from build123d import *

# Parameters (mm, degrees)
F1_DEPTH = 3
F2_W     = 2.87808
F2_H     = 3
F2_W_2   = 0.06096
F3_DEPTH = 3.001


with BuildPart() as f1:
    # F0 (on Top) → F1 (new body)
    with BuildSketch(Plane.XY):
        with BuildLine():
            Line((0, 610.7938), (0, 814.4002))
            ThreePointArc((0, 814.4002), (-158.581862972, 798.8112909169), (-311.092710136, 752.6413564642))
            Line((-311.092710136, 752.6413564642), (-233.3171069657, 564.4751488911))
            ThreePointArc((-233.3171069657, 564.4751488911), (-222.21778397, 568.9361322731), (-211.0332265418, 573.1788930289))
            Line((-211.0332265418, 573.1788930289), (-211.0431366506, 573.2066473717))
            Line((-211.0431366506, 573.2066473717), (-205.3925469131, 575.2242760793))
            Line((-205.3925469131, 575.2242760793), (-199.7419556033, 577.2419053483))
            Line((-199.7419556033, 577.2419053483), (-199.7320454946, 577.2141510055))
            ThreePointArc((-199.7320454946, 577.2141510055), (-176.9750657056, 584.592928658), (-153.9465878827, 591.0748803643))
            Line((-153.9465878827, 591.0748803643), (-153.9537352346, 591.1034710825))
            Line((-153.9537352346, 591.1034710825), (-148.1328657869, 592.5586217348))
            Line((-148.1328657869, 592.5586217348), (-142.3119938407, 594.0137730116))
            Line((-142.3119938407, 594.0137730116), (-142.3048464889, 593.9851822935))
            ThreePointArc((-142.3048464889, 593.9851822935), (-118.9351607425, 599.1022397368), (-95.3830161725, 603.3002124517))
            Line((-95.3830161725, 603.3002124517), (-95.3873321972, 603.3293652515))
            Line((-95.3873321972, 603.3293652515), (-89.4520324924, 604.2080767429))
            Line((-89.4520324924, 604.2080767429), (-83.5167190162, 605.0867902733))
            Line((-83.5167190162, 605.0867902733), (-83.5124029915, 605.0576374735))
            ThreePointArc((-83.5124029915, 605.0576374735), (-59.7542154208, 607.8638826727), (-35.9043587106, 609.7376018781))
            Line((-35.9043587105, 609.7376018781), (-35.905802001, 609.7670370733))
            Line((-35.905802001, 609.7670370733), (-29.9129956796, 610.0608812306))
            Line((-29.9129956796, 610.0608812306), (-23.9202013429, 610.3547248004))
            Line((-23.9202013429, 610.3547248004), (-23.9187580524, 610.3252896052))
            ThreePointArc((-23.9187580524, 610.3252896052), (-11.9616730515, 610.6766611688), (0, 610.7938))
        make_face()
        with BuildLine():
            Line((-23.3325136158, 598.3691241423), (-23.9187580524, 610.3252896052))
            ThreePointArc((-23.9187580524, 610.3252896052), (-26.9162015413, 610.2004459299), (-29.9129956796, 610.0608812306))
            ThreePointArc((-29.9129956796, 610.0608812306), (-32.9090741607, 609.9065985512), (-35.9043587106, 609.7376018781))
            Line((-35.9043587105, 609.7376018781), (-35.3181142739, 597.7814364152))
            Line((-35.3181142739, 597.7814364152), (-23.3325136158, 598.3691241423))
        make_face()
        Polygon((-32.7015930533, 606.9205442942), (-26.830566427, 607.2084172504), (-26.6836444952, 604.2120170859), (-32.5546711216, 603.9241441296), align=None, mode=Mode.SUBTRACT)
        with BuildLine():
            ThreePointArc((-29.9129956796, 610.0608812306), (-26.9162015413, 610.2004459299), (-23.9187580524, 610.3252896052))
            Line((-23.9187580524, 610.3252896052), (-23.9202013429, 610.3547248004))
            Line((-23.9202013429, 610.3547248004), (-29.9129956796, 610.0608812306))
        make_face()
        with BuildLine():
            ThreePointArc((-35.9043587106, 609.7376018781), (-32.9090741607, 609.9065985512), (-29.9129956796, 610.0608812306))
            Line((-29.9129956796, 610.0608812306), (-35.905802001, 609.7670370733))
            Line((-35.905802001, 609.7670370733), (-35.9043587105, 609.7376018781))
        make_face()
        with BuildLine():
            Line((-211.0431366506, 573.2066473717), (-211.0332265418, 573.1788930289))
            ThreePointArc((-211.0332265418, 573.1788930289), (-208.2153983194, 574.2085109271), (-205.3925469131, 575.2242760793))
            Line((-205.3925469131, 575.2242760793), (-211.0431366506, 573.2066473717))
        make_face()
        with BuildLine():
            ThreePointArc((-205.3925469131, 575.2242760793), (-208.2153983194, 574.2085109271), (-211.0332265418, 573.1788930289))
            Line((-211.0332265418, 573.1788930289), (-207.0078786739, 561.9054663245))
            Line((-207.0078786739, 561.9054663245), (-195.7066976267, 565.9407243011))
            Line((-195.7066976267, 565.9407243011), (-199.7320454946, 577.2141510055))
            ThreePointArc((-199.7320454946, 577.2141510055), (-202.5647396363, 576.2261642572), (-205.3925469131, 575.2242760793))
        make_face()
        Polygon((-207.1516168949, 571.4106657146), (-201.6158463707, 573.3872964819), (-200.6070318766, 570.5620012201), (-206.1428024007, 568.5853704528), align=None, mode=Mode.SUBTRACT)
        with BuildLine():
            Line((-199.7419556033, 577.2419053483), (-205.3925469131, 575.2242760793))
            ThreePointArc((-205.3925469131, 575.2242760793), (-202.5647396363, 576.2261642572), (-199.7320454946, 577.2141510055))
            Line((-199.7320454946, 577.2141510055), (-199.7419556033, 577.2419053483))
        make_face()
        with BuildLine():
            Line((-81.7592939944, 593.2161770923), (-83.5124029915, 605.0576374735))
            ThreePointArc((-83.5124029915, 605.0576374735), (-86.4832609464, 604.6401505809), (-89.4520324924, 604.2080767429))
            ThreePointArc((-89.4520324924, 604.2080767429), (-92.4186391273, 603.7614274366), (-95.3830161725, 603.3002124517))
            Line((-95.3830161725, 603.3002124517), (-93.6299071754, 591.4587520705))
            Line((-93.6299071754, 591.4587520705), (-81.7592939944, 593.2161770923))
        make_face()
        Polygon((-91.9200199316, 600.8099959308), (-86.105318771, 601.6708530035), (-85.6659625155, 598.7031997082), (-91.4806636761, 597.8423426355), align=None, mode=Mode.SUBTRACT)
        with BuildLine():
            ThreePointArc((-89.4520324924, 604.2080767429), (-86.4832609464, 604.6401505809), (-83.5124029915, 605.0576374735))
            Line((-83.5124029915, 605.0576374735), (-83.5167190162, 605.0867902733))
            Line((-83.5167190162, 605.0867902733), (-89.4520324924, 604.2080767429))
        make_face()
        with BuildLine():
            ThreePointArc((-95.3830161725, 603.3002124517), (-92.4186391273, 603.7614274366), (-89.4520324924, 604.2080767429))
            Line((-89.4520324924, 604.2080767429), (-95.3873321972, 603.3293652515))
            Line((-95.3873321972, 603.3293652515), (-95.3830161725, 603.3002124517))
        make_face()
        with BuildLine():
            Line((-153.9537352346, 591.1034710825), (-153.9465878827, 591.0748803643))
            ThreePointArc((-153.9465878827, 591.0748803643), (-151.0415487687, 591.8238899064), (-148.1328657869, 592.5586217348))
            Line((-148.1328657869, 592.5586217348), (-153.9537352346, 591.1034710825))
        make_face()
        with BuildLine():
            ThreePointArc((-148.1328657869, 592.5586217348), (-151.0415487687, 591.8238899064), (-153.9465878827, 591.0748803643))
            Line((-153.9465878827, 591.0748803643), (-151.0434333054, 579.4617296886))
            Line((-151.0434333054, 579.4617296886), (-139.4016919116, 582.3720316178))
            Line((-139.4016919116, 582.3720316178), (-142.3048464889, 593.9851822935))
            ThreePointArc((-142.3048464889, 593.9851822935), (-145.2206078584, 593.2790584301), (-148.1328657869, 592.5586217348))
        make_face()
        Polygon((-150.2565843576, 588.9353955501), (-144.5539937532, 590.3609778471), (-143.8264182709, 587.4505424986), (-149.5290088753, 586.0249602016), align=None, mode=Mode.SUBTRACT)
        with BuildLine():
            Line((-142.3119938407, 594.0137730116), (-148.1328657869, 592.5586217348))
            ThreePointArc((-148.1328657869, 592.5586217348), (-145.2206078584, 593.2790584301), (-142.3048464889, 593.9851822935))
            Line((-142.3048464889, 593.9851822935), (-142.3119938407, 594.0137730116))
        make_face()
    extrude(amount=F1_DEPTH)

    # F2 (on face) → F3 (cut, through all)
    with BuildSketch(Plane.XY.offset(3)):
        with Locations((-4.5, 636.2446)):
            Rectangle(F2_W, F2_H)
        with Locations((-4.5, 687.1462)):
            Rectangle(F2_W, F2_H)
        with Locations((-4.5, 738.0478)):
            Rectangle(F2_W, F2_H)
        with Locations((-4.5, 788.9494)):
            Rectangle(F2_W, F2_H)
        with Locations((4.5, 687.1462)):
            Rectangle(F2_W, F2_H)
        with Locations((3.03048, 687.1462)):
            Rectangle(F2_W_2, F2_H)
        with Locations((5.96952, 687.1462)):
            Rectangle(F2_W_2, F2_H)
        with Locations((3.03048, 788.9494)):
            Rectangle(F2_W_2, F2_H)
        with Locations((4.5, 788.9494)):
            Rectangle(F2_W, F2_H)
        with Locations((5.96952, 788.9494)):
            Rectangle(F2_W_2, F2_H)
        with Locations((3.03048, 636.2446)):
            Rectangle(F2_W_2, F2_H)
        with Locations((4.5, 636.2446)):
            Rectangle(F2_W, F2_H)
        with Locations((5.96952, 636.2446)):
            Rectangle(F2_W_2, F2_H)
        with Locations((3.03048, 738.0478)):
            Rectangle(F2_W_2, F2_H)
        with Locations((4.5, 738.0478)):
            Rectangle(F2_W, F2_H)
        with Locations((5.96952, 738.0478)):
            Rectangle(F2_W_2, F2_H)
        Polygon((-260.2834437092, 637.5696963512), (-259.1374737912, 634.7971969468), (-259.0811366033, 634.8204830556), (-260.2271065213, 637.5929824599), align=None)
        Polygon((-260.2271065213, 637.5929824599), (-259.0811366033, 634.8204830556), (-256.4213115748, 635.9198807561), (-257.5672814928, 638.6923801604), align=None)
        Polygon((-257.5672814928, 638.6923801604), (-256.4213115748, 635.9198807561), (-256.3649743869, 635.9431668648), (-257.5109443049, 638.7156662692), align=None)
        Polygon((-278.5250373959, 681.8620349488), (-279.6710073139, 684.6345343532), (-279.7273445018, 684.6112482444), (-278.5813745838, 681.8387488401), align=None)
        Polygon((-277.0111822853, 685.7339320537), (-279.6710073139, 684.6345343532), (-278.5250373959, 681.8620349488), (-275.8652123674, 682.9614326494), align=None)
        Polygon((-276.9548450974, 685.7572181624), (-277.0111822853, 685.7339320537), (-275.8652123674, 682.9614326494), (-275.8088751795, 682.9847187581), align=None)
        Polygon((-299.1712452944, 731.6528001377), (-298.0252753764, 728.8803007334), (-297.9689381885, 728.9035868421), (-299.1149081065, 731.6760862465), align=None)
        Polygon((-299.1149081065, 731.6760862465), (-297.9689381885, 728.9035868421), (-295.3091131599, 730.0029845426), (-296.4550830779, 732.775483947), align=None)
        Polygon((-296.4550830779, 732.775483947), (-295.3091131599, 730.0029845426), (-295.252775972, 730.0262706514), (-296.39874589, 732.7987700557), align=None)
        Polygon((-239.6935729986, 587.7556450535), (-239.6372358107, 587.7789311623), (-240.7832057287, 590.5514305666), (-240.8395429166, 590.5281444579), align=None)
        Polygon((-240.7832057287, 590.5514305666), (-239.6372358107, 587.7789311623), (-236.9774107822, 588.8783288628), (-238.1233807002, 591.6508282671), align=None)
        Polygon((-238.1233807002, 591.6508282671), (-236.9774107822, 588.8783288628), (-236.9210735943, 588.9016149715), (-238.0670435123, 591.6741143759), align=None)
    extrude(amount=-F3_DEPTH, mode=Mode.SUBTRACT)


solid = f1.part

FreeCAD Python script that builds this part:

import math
import FreeCAD as App
import Part
import Sketcher

V = App.Vector
Q = App.Units.Quantity


def add_polygon(sketch, points):
    """Adds a closed chain of lines whose ends are joined by coincident constraints."""
    first, n = sketch.GeometryCount, len(points)
    for a, b in zip(points, points[1:] + points[:1]):
        sketch.addGeometry(Part.LineSegment(App.Vector(*a, 0), App.Vector(*b, 0)), False)
    for i in range(n):
        sketch.addConstraint(Sketcher.Constraint("Coincident", first + i, 2, first + (i + 1) % n, 1))

doc = App.newDocument("Part")
body = doc.addObject("PartDesign::Body", "Body")

sketch1 = body.newObject("Sketcher::SketchObject", "Sketch")
sketch1.AttachmentSupport = (doc.getObject("XY_Plane"), [""])
sketch1.MapMode = "FlatFace"
sketch1.addGeometry(Part.LineSegment(V(-151.043433, 579.46173, 0), V(-139.401692, 582.372032, 0)), False)
sketch1.addGeometry(Part.LineSegment(V(-139.401692, 582.372032, 0), V(-142.304846, 593.985182, 0)), False)
sketch1.addGeometry(Part.ArcOfCircle(Part.Circle(V(0, 0, 0), V(0, 0, 1), 610.7938), math.radians(98.984217), math.radians(103.472784)), False)
sketch1.addGeometry(Part.LineSegment(V(-95.383016, 603.300212, 0), V(-93.629907, 591.458752, 0)), False)
sketch1.addGeometry(Part.LineSegment(V(-93.629907, 591.458752, 0), V(-81.759294, 593.216177, 0)), False)
sketch1.addGeometry(Part.LineSegment(V(-81.759294, 593.216177, 0), V(-83.512403, 605.057637, 0)), False)
sketch1.addGeometry(Part.ArcOfCircle(Part.Circle(V(0, 0, 0), V(0, 0, 1), 610.7938), math.radians(93.369967), math.radians(97.858534)), False)
sketch1.addGeometry(Part.LineSegment(V(-35.904359, 609.737602, 0), V(-35.318114, 597.781436, 0)), False)
sketch1.addGeometry(Part.LineSegment(V(-35.318114, 597.781436, 0), V(-23.332514, 598.369124, 0)), False)
sketch1.addGeometry(Part.LineSegment(V(-23.332514, 598.369124, 0), V(-23.918758, 610.32529, 0)), False)
sketch1.addGeometry(Part.ArcOfCircle(Part.Circle(V(0, 0, 0), V(0, 0, 1), 610.7938), math.radians(90), math.radians(92.244283)), False)
sketch1.addGeometry(Part.LineSegment(V(0, 610.7938, 0), V(0, 814.4002, 0)), False)
sketch1.addGeometry(Part.ArcOfCircle(Part.Circle(V(0, 0, 0), V(0, 0, 1), 814.4002), math.radians(90), math.radians(112.457001)), False)
sketch1.addGeometry(Part.LineSegment(V(-311.09271, 752.641356, 0), V(-233.317107, 564.475149, 0)), False)
sketch1.addGeometry(Part.ArcOfCircle(Part.Circle(V(0, 0, 0), V(0, 0, 1), 610.7938), math.radians(110.212717), math.radians(112.457001)), False)
sketch1.addGeometry(Part.LineSegment(V(-211.033227, 573.178893, 0), V(-207.007879, 561.905466, 0)), False)
sketch1.addGeometry(Part.LineSegment(V(-207.007879, 561.905466, 0), V(-195.706698, 565.940724, 0)), False)
sketch1.addGeometry(Part.LineSegment(V(-195.706698, 565.940724, 0), V(-199.732045, 577.214151, 0)), False)
sketch1.addGeometry(Part.ArcOfCircle(Part.Circle(V(0, 0, 0), V(0, 0, 1), 610.7938), math.radians(104.598467), math.radians(109.087034)), False)
sketch1.addGeometry(Part.LineSegment(V(-153.946588, 591.07488, 0), V(-151.043433, 579.46173, 0)), False)
add_polygon(sketch1, [(-206.142802, 568.58537), (-207.151617, 571.410666), (-201.615846, 573.387296), (-200.607032, 570.562001)])
add_polygon(sketch1, [(-149.529009, 586.02496), (-150.256584, 588.935396), (-144.553994, 590.360978), (-143.826418, 587.450542)])
add_polygon(sketch1, [(-91.92002, 600.809996), (-86.105319, 601.670853), (-85.665963, 598.7032), (-91.480664, 597.842343)])
add_polygon(sketch1, [(-32.701593, 606.920544), (-26.830566, 607.208417), (-26.683644, 604.212017), (-32.554671, 603.924144)])
sketch1.addConstraint(Sketcher.Constraint("Coincident", 0, 2, 1, 1))
sketch1.addConstraint(Sketcher.Constraint("Coincident", 1, 2, 2, 2))
sketch1.addConstraint(Sketcher.Constraint("Coincident", 2, 1, 3, 1))
sketch1.addConstraint(Sketcher.Constraint("Coincident", 3, 2, 4, 1))
sketch1.addConstraint(Sketcher.Constraint("Coincident", 4, 2, 5, 1))
sketch1.addConstraint(Sketcher.Constraint("Coincident", 5, 2, 6, 2))
sketch1.addConstraint(Sketcher.Constraint("Coincident", 6, 1, 7, 1))
sketch1.addConstraint(Sketcher.Constraint("Coincident", 7, 2, 8, 1))
sketch1.addConstraint(Sketcher.Constraint("Coincident", 8, 2, 9, 1))
sketch1.addConstraint(Sketcher.Constraint("Coincident", 9, 2, 10, 2))
sketch1.addConstraint(Sketcher.Constraint("Coincident", 10, 1, 11, 1))
sketch1.addConstraint(Sketcher.Constraint("Coincident", 11, 2, 12, 1))
sketch1.addConstraint(Sketcher.Constraint("Coincident", 12, 2, 13, 1))
sketch1.addConstraint(Sketcher.Constraint("Coincident", 13, 2, 14, 2))
sketch1.addConstraint(Sketcher.Constraint("Coincident", 14, 1, 15, 1))
sketch1.addConstraint(Sketcher.Constraint("Coincident", 15, 2, 16, 1))
sketch1.addConstraint(Sketcher.Constraint("Coincident", 16, 2, 17, 1))
sketch1.addConstraint(Sketcher.Constraint("Coincident", 17, 2, 18, 2))
sketch1.addConstraint(Sketcher.Constraint("Coincident", 18, 1, 19, 1))
sketch1.addConstraint(Sketcher.Constraint("Coincident", 19, 2, 0, 1))
sketch1.addConstraint(Sketcher.Constraint("Vertical", 11))
sketch1.addConstraint(Sketcher.Constraint("Coincident", 2, 3, -1, 1))
sketch1.addConstraint(Sketcher.Constraint("Coincident", 6, 3, -1, 1))
sketch1.addConstraint(Sketcher.Constraint("Coincident", 10, 3, -1, 1))
sketch1.addConstraint(Sketcher.Constraint("Coincident", 12, 3, -1, 1))
sketch1.addConstraint(Sketcher.Constraint("Coincident", 14, 3, -1, 1))
sketch1.addConstraint(Sketcher.Constraint("Coincident", 18, 3, -1, 1))
sketch1.addConstraint(Sketcher.Constraint("Equal", 2, 6))
sketch1.addConstraint(Sketcher.Constraint("Equal", 6, 10))
sketch1.addConstraint(Sketcher.Constraint("Equal", 10, 14))
sketch1.addConstraint(Sketcher.Constraint("Equal", 14, 18))
sketch1.addConstraint(Sketcher.Constraint("PointOnObject", 11, 2, -2))
sketch1.addConstraint(Sketcher.Constraint("Perpendicular", 0, 1))
sketch1.addConstraint(Sketcher.Constraint("Perpendicular", 3, 4))
sketch1.addConstraint(Sketcher.Constraint("Perpendicular", 4, 5))
sketch1.addConstraint(Sketcher.Constraint("Perpendicular", 7, 8))
sketch1.addConstraint(Sketcher.Constraint("Perpendicular", 8, 9))
sketch1.addConstraint(Sketcher.Constraint("Perpendicular", 15, 16))
sketch1.addConstraint(Sketcher.Constraint("Perpendicular", 16, 17))
sketch1.addConstraint(Sketcher.Constraint("Parallel", 1, 19))
sketch1.addConstraint(Sketcher.Constraint("Parallel", 17, 20))
sketch1.addConstraint(Sketcher.Constraint("Perpendicular", 20, 21))
sketch1.addConstraint(Sketcher.Constraint("Perpendicular", 21, 22))
sketch1.addConstraint(Sketcher.Constraint("Perpendicular", 22, 23))
sketch1.addConstraint(Sketcher.Constraint("Parallel", 19, 24))
sketch1.addConstraint(Sketcher.Constraint("Perpendicular", 24, 25))
sketch1.addConstraint(Sketcher.Constraint("Perpendicular", 25, 26))
sketch1.addConstraint(Sketcher.Constraint("Perpendicular", 26, 27))
sketch1.addConstraint(Sketcher.Constraint("Perpendicular", 5, 28))
sketch1.addConstraint(Sketcher.Constraint("Perpendicular", 28, 29))
sketch1.addConstraint(Sketcher.Constraint("Perpendicular", 29, 30))
sketch1.addConstraint(Sketcher.Constraint("Perpendicular", 30, 31))
sketch1.addConstraint(Sketcher.Constraint("Perpendicular", 9, 32))
sketch1.addConstraint(Sketcher.Constraint("Perpendicular", 32, 33))
sketch1.addConstraint(Sketcher.Constraint("Perpendicular", 33, 34))
sketch1.addConstraint(Sketcher.Constraint("Perpendicular", 34, 35))
sketch1.addConstraint(Sketcher.Constraint("Equal", 1, 3))
sketch1.addConstraint(Sketcher.Constraint("Equal", 0, 4))
sketch1.addConstraint(Sketcher.Constraint("Equal", 3, 5))
sketch1.addConstraint(Sketcher.Constraint("Equal", 5, 7))
sketch1.addConstraint(Sketcher.Constraint("Equal", 4, 8))
sketch1.addConstraint(Sketcher.Constraint("Equal", 7, 9))
sketch1.addConstraint(Sketcher.Constraint("Equal", 9, 15))
sketch1.addConstraint(Sketcher.Constraint("Equal", 8, 16))
sketch1.addConstraint(Sketcher.Constraint("Equal", 15, 17))
sketch1.addConstraint(Sketcher.Constraint("Equal", 17, 19))
sketch1.addConstraint(Sketcher.Constraint("Equal", 22, 24))
sketch1.addConstraint(Sketcher.Constraint("Equal", 23, 25))
sketch1.addConstraint(Sketcher.Constraint("Equal", 27, 28))
sketch1.addConstraint(Sketcher.Constraint("Equal", 26, 29))
sketch1.addConstraint(Sketcher.Constraint("Equal", 30, 32))
sketch1.addConstraint(Sketcher.Constraint("Equal", 31, 33))
sketch1.addConstraint(Sketcher.Constraint("Radius", 2, Q("24.047 in")))
sketch1.addConstraint(Sketcher.Constraint("Radius", 12, Q("32.063 in")))
sketch1.addConstraint(Sketcher.Constraint("DistanceY", -1, 1, 30, 2, Q("23.5371001 in")))
sketch1.addConstraint(Sketcher.Constraint("DistanceY", 13, 2, 16, 2, Q("0.0576998 in")))
sketch1.addConstraint(Sketcher.Constraint("DistanceY", 0, 2, 24, 2, Q("0.2584002 in")))
sketch1.addConstraint(Sketcher.Constraint("Distance", 0, Q("12 mm")))
sketch1.addConstraint(Sketcher.Constraint("Distance", 20, Q("3 mm")))
sketch1.addConstraint(Sketcher.Constraint("DistanceY", -1, 1, 22, 2, Q("570.562001 mm")))
sketch1.addConstraint(Sketcher.Constraint("DistanceY", -1, 1, 29, 2, Q("598.7032 mm")))
sketch1.addConstraint(Sketcher.Constraint("DistanceY", 7, 2, 5, 2, Q("7.276201 mm")))
sketch1.addConstraint(Sketcher.Constraint("DistanceX", 13, 2, 3, 2, Q("139.6872 mm")))
sketch1.addConstraint(Sketcher.Constraint("DistanceX", 17, 2, 1, 2, Q("57.427199 mm")))
sketch1.addConstraint(Sketcher.Constraint("DistanceY", 19, 2, 0, 2, Q("2.910302 mm")))
sketch1.addConstraint(Sketcher.Constraint("DistanceY", 15, 2, 20, 2, Q("9.505199 mm")))
sketch1.addConstraint(Sketcher.Constraint("DistanceX", 21, 2, 17, 2, Q("1.883801 mm")))
sketch1.addConstraint(Sketcher.Constraint("DistanceX", 25, 2, 0, 2, Q("5.152302 mm")))
sketch1.addConstraint(Sketcher.Constraint("DistanceX", 28, 2, -1, 1, Q("86.105319 mm")))
sketch1.addConstraint(Sketcher.Constraint("DistanceX", 34, 2, -1, 1, Q("32.554671 mm")))
sketch1.addConstraint(Sketcher.Constraint("DistanceY", 7, 2, 32, 2, Q("9.426981 mm")))
sketch1.addConstraint(Sketcher.Constraint("Angle", 13, Q("-67.542999 deg")))
pad1 = body.newObject("PartDesign::Pad", "Pad")
pad1.Profile = sketch1
pad1.Length = 3

sketch2 = body.newObject("Sketcher::SketchObject", "Sketch001")
sketch2.AttachmentSupport = (doc.getObject("XY_Plane"), [""])
sketch2.MapMode = "FlatFace"
sketch2.AttachmentOffset = App.Placement(V(0, 0, 3), App.Rotation())
add_polygon(sketch2, [(-5.93904, 637.7446), (-5.93904, 634.7446), (-3.06096, 634.7446), (-3.06096, 637.7446)])
add_polygon(sketch2, [(-5.93904, 688.6462), (-5.93904, 685.6462), (-3.06096, 685.6462), (-3.06096, 688.6462)])
add_polygon(sketch2, [(-5.93904, 739.5478), (-5.93904, 736.5478), (-3.06096, 736.5478), (-3.06096, 739.5478)])
add_polygon(sketch2, [(-5.93904, 790.4494), (-5.93904, 787.4494), (-3.06096, 787.4494), (-3.06096, 790.4494)])
add_polygon(sketch2, [(3, 688.6462), (3, 685.6462), (6, 685.6462), (6, 688.6462)])
add_polygon(sketch2, [(3, 790.4494), (3, 787.4494), (6, 787.4494), (6, 790.4494)])
add_polygon(sketch2, [(3, 637.7446), (3, 634.7446), (6, 634.7446), (6, 637.7446)])
add_polygon(sketch2, [(3, 739.5478), (3, 736.5478), (6, 736.5478), (6, 739.5478)])
add_polygon(sketch2, [(-260.283444, 637.569696), (-259.137474, 634.797197), (-259.081137, 634.820483), (-256.421312, 635.919881), (-256.364974, 635.943167), (-257.510944, 638.715666), (-257.567281, 638.69238), (-260.227107, 637.592982)])
add_polygon(sketch2, [(-279.671007, 684.634534), (-279.727345, 684.611248), (-278.581375, 681.838749), (-278.525037, 681.862035), (-275.865212, 682.961433), (-275.808875, 682.984719), (-276.954845, 685.757218), (-277.011182, 685.733932)])
add_polygon(sketch2, [(-299.171245, 731.6528), (-298.025275, 728.880301), (-297.968938, 728.903587), (-295.309113, 730.002985), (-295.252776, 730.026271), (-296.398746, 732.79877), (-296.455083, 732.775484), (-299.114908, 731.676086)])
add_polygon(sketch2, [(-239.693573, 587.755645), (-239.637236, 587.778931), (-236.977411, 588.878329), (-236.921074, 588.901615), (-238.067044, 591.674114), (-238.123381, 591.650828), (-240.783206, 590.551431), (-240.839543, 590.528144)])
sketch2.addConstraint(Sketcher.Constraint("Vertical", 0))
sketch2.addConstraint(Sketcher.Constraint("Horizontal", 1))
sketch2.addConstraint(Sketcher.Constraint("Vertical", 2))
sketch2.addConstraint(Sketcher.Constraint("Horizontal", 3))
sketch2.addConstraint(Sketcher.Constraint("Vertical", 4))
sketch2.addConstraint(Sketcher.Constraint("Horizontal", 5))
sketch2.addConstraint(Sketcher.Constraint("Vertical", 6))
sketch2.addConstraint(Sketcher.Constraint("Horizontal", 7))
sketch2.addConstraint(Sketcher.Constraint("Vertical", 8))
sketch2.addConstraint(Sketcher.Constraint("Horizontal", 9))
sketch2.addConstraint(Sketcher.Constraint("Vertical", 10))
sketch2.addConstraint(Sketcher.Constraint("Horizontal", 11))
sketch2.addConstraint(Sketcher.Constraint("Vertical", 12))
sketch2.addConstraint(Sketcher.Constraint("Horizontal", 13))
sketch2.addConstraint(Sketcher.Constraint("Vertical", 14))
sketch2.addConstraint(Sketcher.Constraint("Horizontal", 15))
sketch2.addConstraint(Sketcher.Constraint("Vertical", 16))
sketch2.addConstraint(Sketcher.Constraint("Horizontal", 17))
sketch2.addConstraint(Sketcher.Constraint("Vertical", 18))
sketch2.addConstraint(Sketcher.Constraint("Horizontal", 19))
sketch2.addConstraint(Sketcher.Constraint("Vertical", 20))
sketch2.addConstraint(Sketcher.Constraint("Horizontal", 21))
sketch2.addConstraint(Sketcher.Constraint("Vertical", 22))
sketch2.addConstraint(Sketcher.Constraint("Horizontal", 23))
sketch2.addConstraint(Sketcher.Constraint("Vertical", 24))
sketch2.addConstraint(Sketcher.Constraint("Horizontal", 25))
sketch2.addConstraint(Sketcher.Constraint("Vertical", 26))
sketch2.addConstraint(Sketcher.Constraint("Horizontal", 27))
sketch2.addConstraint(Sketcher.Constraint("Vertical", 28))
sketch2.addConstraint(Sketcher.Constraint("Horizontal", 29))
sketch2.addConstraint(Sketcher.Constraint("Vertical", 30))
sketch2.addConstraint(Sketcher.Constraint("Horizontal", 31))
sketch2.addConstraint(Sketcher.Constraint("Perpendicular", 32, 33))
sketch2.addConstraint(Sketcher.Constraint("Parallel", 33, 34))
sketch2.addConstraint(Sketcher.Constraint("Parallel", 34, 35))
sketch2.addConstraint(Sketcher.Constraint("Perpendicular", 35, 36))
sketch2.addConstraint(Sketcher.Constraint("Perpendicular", 36, 37))
sketch2.addConstraint(Sketcher.Constraint("Parallel", 37, 38))
sketch2.addConstraint(Sketcher.Constraint("Parallel", 38, 39))
sketch2.addConstraint(Sketcher.Constraint("Parallel", 39, 40))
sketch2.addConstraint(Sketcher.Constraint("Perpendicular", 40, 41))
sketch2.addConstraint(Sketcher.Constraint("Perpendicular", 41, 42))
sketch2.addConstraint(Sketcher.Constraint("Parallel", 42, 43))
sketch2.addConstraint(Sketcher.Constraint("Parallel", 43, 44))
sketch2.addConstraint(Sketcher.Constraint("Perpendicular", 44, 45))
sketch2.addConstraint(Sketcher.Constraint("Perpendicular", 45, 46))
sketch2.addConstraint(Sketcher.Constraint("Parallel", 46, 47))
sketch2.addConstraint(Sketcher.Constraint("Perpendicular", 47, 48))
sketch2.addConstraint(Sketcher.Constraint("Perpendicular", 48, 49))
sketch2.addConstraint(Sketcher.Constraint("Parallel", 49, 50))
sketch2.addConstraint(Sketcher.Constraint("Parallel", 50, 51))
sketch2.addConstraint(Sketcher.Constraint("Perpendicular", 51, 52))
sketch2.addConstraint(Sketcher.Constraint("Perpendicular", 52, 53))
sketch2.addConstraint(Sketcher.Constraint("Parallel", 53, 54))
sketch2.addConstraint(Sketcher.Constraint("Parallel", 54, 55))
sketch2.addConstraint(Sketcher.Constraint("Parallel", 55, 56))
sketch2.addConstraint(Sketcher.Constraint("Parallel", 56, 57))
sketch2.addConstraint(Sketcher.Constraint("Parallel", 57, 58))
sketch2.addConstraint(Sketcher.Constraint("Perpendicular", 58, 59))
sketch2.addConstraint(Sketcher.Constraint("Perpendicular", 59, 60))
sketch2.addConstraint(Sketcher.Constraint("Parallel", 60, 61))
sketch2.addConstraint(Sketcher.Constraint("Parallel", 61, 62))
sketch2.addConstraint(Sketcher.Constraint("Perpendicular", 62, 63))
sketch2.addConstraint(Sketcher.Constraint("Horizontal", 5, 2, 16, 2))
sketch2.addConstraint(Sketcher.Constraint("Horizontal", 7, 2, 18, 2))
sketch2.addConstraint(Sketcher.Constraint("Horizontal", 13, 2, 20, 2))
sketch2.addConstraint(Sketcher.Constraint("Horizontal", 15, 2, 22, 2))
sketch2.addConstraint(Sketcher.Constraint("Horizontal", 1, 2, 24, 2))
sketch2.addConstraint(Sketcher.Constraint("Horizontal", 3, 2, 26, 2))
sketch2.addConstraint(Sketcher.Constraint("Horizontal", 9, 2, 28, 2))
sketch2.addConstraint(Sketcher.Constraint("Horizontal", 11, 2, 30, 2))
sketch2.addConstraint(Sketcher.Constraint("Vertical", 3, 2, 4, 2))
sketch2.addConstraint(Sketcher.Constraint("Vertical", 2, 2, 5, 2))
sketch2.addConstraint(Sketcher.Constraint("Vertical", 7, 2, 8, 2))
sketch2.addConstraint(Sketcher.Constraint("Vertical", 6, 2, 9, 2))
sketch2.addConstraint(Sketcher.Constraint("Vertical", 11, 2, 12, 2))
sketch2.addConstraint(Sketcher.Constraint("Vertical", 10, 2, 13, 2))
sketch2.addConstraint(Sketcher.Constraint("Vertical", 19, 2, 20, 2))
sketch2.addConstraint(Sketcher.Constraint("Vertical", 18, 2, 21, 2))
sketch2.addConstraint(Sketcher.Constraint("Vertical", 23, 2, 24, 2))
sketch2.addConstraint(Sketcher.Constraint("Vertical", 22, 2, 25, 2))
sketch2.addConstraint(Sketcher.Constraint("Vertical", 27, 2, 28, 2))
sketch2.addConstraint(Sketcher.Constraint("Vertical", 26, 2, 29, 2))
sketch2.addConstraint(Sketcher.Constraint("Equal", 31, 0))
sketch2.addConstraint(Sketcher.Constraint("Equal", 2, 4))
sketch2.addConstraint(Sketcher.Constraint("Equal", 6, 8))
sketch2.addConstraint(Sketcher.Constraint("Equal", 10, 12))
sketch2.addConstraint(Sketcher.Constraint("Equal", 33, 35))
sketch2.addConstraint(Sketcher.Constraint("Equal", 35, 37))
sketch2.addConstraint(Sketcher.Constraint("Equal", 34, 38))
sketch2.addConstraint(Sketcher.Constraint("Equal", 39, 40))
sketch2.addConstraint(Sketcher.Constraint("Equal", 36, 41))
sketch2.addConstraint(Sketcher.Constraint("Equal", 40, 42))
sketch2.addConstraint(Sketcher.Constraint("Equal", 38, 43))
sketch2.addConstraint(Sketcher.Constraint("Equal", 42, 44))
sketch2.addConstraint(Sketcher.Constraint("Equal", 44, 46))
sketch2.addConstraint(Sketcher.Constraint("Equal", 45, 48))
sketch2.addConstraint(Sketcher.Constraint("Equal", 46, 49))
sketch2.addConstraint(Sketcher.Constraint("Equal", 47, 50))
sketch2.addConstraint(Sketcher.Constraint("Equal", 49, 51))
sketch2.addConstraint(Sketcher.Constraint("Equal", 51, 53))
sketch2.addConstraint(Sketcher.Constraint("Equal", 50, 54))
sketch2.addConstraint(Sketcher.Constraint("Equal", 55, 56))
sketch2.addConstraint(Sketcher.Constraint("Equal", 54, 57))
sketch2.addConstraint(Sketcher.Constraint("Equal", 56, 58))
sketch2.addConstraint(Sketcher.Constraint("Equal", 52, 59))
sketch2.addConstraint(Sketcher.Constraint("Equal", 58, 60))
sketch2.addConstraint(Sketcher.Constraint("Equal", 57, 61))
sketch2.addConstraint(Sketcher.Constraint("Distance", 33, Q("0.0024 in")))
sketch2.addConstraint(Sketcher.Constraint("DistanceX", 17, 1, 17, 2, Q("3 mm")))
sketch2.addConstraint(Sketcher.Constraint("Distance", 32, Q("3 mm")))
sketch2.addConstraint(Sketcher.Constraint("DistanceX", 1, 1, 1, 2, Q("2.87808 mm")))
sketch2.addConstraint(Sketcher.Constraint("DistanceY", -1, 1, 0, 2, Q("634.7446 mm")))
sketch2.addConstraint(Sketcher.Constraint("DistanceY", -1, 1, 4, 2, Q("685.6462 mm")))
sketch2.addConstraint(Sketcher.Constraint("DistanceY", -1, 1, 8, 2, Q("736.5478 mm")))
sketch2.addConstraint(Sketcher.Constraint("DistanceY", -1, 1, 12, 2, Q("787.4494 mm")))
sketch2.addConstraint(Sketcher.Constraint("DistanceX", -1, 1, 16, 2, Q("3 mm")))
sketch2.addConstraint(Sketcher.Constraint("DistanceY", -1, 1, 48, 2, Q("728.880301 mm")))
sketch2.addConstraint(Sketcher.Constraint("DistanceY", -1, 1, 55, 2, Q("731.6528 mm")))
sketch2.addConstraint(Sketcher.Constraint("Distance", 34, Q("2.87808 mm")))
sketch2.addConstraint(Sketcher.Constraint("DistanceX", 0, 2, -1, 1, Q("5.93904 mm")))
sketch2.addConstraint(Sketcher.Constraint("DistanceX", 34, 2, -1, 1, Q("256.421312 mm")))
sketch2.addConstraint(Sketcher.Constraint("DistanceY", -1, 1, 34, 2, Q("635.919881 mm")))
sketch2.addConstraint(Sketcher.Constraint("DistanceY", -1, 1, 40, 2, Q("684.611248 mm")))
sketch2.addConstraint(Sketcher.Constraint("DistanceX", 49, 2, -1, 1, Q("297.968938 mm")))
sketch2.addConstraint(Sketcher.Constraint("DistanceY", -1, 1, 56, 2, Q("587.778931 mm")))
sketch2.addConstraint(Sketcher.Constraint("DistanceX", 57, 2, -1, 1, Q("236.977411 mm")))
sketch2.addConstraint(Sketcher.Constraint("DistanceX", 40, 2, -1, 1, Q("279.727345 mm")))
pocket1 = body.newObject("PartDesign::Pocket", "Pocket")
pocket1.Profile = sketch2
pocket1.Type = "ThroughAll"

doc.recompute()
